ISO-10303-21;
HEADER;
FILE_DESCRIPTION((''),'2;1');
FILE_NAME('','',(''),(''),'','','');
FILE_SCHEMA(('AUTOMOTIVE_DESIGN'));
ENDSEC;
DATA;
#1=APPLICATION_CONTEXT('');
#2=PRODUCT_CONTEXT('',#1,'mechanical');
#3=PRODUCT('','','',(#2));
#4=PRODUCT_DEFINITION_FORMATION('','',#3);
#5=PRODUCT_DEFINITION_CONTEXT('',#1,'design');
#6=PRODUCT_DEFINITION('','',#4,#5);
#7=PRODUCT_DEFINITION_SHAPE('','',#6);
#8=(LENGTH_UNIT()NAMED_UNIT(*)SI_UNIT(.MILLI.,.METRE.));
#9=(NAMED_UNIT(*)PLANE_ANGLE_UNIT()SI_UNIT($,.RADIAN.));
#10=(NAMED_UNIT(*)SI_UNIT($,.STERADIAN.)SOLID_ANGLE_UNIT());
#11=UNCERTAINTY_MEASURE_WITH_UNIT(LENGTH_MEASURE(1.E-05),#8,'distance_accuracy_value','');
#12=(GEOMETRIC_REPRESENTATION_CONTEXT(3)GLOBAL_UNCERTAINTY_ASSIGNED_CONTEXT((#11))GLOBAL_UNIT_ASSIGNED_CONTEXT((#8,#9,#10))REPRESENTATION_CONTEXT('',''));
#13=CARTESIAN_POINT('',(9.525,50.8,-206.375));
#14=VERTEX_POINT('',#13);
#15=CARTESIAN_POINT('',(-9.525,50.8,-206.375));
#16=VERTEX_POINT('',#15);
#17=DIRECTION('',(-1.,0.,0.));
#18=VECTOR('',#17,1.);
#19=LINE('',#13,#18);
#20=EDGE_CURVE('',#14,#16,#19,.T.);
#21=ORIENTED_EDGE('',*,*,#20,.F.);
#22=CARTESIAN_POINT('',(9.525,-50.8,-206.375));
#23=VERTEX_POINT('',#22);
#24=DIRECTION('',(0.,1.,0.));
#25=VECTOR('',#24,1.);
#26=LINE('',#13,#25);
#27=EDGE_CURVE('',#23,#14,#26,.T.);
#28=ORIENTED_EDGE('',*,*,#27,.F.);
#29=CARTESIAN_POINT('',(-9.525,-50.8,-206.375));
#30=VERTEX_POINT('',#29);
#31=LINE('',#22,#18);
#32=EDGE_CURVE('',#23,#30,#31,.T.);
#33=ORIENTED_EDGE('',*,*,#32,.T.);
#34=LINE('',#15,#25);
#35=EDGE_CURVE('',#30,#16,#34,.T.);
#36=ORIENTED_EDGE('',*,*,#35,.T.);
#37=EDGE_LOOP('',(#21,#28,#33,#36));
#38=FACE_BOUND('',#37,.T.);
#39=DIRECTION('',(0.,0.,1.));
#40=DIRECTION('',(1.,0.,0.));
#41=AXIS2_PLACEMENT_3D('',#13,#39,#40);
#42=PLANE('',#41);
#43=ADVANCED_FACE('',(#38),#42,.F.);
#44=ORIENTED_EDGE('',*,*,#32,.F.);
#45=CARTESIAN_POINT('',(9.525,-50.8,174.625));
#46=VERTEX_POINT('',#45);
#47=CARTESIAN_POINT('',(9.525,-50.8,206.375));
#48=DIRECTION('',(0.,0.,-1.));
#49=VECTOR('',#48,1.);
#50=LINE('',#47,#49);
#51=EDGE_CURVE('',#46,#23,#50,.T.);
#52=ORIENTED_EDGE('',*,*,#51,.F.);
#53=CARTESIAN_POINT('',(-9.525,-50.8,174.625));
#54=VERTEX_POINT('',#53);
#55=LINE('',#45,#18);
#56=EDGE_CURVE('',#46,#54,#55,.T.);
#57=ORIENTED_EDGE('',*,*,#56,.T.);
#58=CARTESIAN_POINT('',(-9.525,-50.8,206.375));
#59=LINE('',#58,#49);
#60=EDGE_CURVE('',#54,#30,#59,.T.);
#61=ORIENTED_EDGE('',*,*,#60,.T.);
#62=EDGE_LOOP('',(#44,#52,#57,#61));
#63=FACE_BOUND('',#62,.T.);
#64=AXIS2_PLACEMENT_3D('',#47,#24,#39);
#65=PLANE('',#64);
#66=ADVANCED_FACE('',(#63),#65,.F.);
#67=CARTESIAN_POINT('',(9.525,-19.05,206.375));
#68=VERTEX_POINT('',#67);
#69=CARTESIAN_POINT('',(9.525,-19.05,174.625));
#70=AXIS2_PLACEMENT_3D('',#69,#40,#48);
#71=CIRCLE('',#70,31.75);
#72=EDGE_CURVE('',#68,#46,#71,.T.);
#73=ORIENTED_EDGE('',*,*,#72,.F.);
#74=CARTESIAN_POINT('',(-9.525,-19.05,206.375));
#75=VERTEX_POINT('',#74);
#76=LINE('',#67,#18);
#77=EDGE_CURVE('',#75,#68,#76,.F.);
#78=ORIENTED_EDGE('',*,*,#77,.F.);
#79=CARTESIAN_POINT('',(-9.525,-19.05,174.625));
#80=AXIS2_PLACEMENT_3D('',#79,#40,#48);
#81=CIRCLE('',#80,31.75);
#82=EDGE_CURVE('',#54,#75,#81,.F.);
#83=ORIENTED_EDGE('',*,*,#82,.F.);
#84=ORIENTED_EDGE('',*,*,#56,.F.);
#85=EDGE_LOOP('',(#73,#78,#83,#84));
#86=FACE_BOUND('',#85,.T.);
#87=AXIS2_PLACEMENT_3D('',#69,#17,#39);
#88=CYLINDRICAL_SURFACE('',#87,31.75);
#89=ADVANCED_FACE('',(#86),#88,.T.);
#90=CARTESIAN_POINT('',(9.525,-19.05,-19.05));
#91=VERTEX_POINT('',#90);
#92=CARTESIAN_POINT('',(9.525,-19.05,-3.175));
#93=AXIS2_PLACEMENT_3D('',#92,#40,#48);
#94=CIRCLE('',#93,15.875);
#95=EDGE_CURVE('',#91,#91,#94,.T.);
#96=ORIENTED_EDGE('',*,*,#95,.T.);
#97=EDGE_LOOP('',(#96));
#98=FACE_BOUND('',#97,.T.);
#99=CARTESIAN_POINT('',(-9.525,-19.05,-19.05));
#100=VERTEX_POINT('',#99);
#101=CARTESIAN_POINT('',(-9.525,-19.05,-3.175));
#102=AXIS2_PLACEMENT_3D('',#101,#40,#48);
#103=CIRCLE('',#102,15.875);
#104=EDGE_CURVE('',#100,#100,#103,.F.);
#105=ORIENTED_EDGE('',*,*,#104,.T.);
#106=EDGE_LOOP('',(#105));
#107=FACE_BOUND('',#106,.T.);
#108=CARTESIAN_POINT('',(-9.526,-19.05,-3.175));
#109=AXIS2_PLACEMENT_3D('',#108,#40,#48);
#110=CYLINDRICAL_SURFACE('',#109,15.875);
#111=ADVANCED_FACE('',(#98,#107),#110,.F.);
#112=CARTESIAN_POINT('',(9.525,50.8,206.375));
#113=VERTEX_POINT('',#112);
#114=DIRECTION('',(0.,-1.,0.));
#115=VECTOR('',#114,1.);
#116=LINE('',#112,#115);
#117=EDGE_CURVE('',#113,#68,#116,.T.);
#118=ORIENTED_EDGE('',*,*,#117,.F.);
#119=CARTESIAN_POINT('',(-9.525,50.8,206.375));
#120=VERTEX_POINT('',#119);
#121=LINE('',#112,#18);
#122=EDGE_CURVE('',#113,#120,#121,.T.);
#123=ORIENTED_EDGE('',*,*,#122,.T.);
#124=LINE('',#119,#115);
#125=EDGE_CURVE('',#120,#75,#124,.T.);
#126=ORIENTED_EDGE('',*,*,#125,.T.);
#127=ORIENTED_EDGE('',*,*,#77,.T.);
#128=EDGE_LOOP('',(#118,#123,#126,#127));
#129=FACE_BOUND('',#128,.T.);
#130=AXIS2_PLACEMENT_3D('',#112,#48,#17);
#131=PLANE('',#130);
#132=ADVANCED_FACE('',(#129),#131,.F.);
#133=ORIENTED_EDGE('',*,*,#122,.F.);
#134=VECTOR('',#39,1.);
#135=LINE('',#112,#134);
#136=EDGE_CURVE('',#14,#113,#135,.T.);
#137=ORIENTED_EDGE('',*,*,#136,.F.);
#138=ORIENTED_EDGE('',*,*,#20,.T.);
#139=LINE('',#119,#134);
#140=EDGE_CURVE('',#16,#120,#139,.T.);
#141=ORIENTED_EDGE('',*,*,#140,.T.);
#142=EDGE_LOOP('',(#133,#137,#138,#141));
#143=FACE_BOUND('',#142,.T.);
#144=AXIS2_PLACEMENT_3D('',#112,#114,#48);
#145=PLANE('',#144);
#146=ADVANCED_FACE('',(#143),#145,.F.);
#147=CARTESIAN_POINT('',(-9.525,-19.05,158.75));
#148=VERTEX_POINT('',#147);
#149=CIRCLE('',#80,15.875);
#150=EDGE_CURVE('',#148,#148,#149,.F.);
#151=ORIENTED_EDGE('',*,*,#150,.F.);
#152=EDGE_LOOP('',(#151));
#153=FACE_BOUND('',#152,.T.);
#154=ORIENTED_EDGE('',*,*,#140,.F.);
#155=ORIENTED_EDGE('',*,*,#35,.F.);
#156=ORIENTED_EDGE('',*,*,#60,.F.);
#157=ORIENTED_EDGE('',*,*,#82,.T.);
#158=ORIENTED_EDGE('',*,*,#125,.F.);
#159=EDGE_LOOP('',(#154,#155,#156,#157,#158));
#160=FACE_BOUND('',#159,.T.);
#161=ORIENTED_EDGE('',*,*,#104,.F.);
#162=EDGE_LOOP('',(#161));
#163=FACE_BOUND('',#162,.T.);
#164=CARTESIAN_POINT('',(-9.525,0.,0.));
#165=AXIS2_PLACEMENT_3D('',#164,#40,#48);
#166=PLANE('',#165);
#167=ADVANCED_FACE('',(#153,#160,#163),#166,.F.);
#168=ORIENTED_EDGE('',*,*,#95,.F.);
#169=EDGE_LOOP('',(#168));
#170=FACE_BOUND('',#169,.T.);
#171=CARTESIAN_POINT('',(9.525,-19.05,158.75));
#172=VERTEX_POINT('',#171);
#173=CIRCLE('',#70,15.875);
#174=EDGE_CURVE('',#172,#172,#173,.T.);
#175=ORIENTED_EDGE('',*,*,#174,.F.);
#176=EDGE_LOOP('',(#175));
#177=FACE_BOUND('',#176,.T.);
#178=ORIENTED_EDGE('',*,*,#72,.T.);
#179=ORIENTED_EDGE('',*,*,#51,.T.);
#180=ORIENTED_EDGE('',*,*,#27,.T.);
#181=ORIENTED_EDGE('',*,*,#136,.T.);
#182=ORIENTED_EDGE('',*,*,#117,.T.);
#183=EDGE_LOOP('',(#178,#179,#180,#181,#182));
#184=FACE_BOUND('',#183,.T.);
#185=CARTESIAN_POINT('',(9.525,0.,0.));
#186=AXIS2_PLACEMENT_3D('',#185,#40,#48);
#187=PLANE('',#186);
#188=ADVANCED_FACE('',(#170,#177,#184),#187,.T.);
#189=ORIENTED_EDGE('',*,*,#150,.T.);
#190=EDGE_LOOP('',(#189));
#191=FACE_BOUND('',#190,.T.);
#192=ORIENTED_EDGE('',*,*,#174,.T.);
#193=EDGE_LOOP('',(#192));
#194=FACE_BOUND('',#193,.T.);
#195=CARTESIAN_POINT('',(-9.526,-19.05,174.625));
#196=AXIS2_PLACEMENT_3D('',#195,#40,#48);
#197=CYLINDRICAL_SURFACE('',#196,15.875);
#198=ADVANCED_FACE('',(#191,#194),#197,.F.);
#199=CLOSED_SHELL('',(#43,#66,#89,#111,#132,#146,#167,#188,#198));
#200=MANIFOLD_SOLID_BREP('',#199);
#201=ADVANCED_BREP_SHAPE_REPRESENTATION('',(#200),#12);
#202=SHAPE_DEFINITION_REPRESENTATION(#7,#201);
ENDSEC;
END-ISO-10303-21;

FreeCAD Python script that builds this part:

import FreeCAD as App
import Part
import Sketcher
from FreeCAD import Vector
Q = App.Units.Quantity


def edges_at(feature, points):
    """Names of the edges that pass closest to the given points."""
    edges = feature.Shape.Edges
    near = lambda p: min(range(len(edges)), key=lambda i: edges[i].distToShape(Part.Vertex(*p))[0])
    return sorted({f"Edge{near(p) + 1}" for p in points})

doc = App.newDocument("Part")
body = doc.addObject("PartDesign::Body", "Body")

sketch1 = body.newObject("Sketcher::SketchObject", "Sketch")
sketch1.AttachmentSupport = (doc.getObject("YZ_Plane"), [""])
sketch1.MapMode = "FlatFace"
sketch1.addGeometry([
    Part.LineSegment(Vector(51, 206, 0), Vector(-51, 206, 0)),
    Part.LineSegment(Vector(-51, 206, 0), Vector(-51, -206, 0)),
    Part.LineSegment(Vector(-51, -206, 0), Vector(51, -206, 0)),
    Part.LineSegment(Vector(51, -206, 0), Vector(51, 206, 0)),
], False)
sketch1.addConstraint([
    Sketcher.Constraint("Coincident", 0, 2, 1, 1),
    Sketcher.Constraint("Coincident", 1, 2, 2, 1),
    Sketcher.Constraint("Coincident", 2, 2, 3, 1),
    Sketcher.Constraint("Coincident", 3, 2, 0, 1),
    Sketcher.Constraint("Horizontal", 0),
    Sketcher.Constraint("Vertical", 1),
    Sketcher.Constraint("Horizontal", 2),
    Sketcher.Constraint("Vertical", 3),
    Sketcher.Constraint("Symmetric", 0, 2, 2, 2, -1, 1),
    Sketcher.Constraint("DistanceX", 0, 2, 0, 1, Q("4 in")),
    Sketcher.Constraint("DistanceY", 1, 2, 1, 1, Q("16.25 in")),
])
pad1 = body.newObject("PartDesign::Pad", "Pad")
pad1.Profile = sketch1
pad1.Length = Q("0.75 in")
pad1.Midplane = True

sketch2 = body.newObject("Sketcher::SketchObject", "Sketch001")
sketch2.AttachmentSupport = (doc.getObject("YZ_Plane"), [""])
sketch2.MapMode = "FlatFace"
sketch2.AttachmentOffset = App.Placement(Vector(0, 0, 0.375 * 25.4), App.Rotation())
sketch2.addGeometry(Part.Circle(Vector(-19, 175, 0), Vector(0, 0, 1), 16), False)
sketch2.addConstraint([
    Sketcher.Constraint("Diameter", 0, Q("1.25 in")),
    Sketcher.Constraint("DistanceX", 0, 3, -1, 1, Q("0.75 in")),
    Sketcher.Constraint("DistanceY", -1, 1, 0, 3, Q("6.875 in")),
])
pocket1 = body.newObject("PartDesign::Pocket", "Pocket")
pocket1.Profile = sketch2
pocket1.Type = "UpToFirst"

sketch3 = body.newObject("Sketcher::SketchObject", "Sketch002")
sketch3.AttachmentSupport = (doc.getObject("YZ_Plane"), [""])
sketch3.MapMode = "FlatFace"
sketch3.AttachmentOffset = App.Placement(Vector(0, 0, 0.375 * 25.4), App.Rotation())
sketch3.addGeometry(Part.Circle(Vector(-19, -3, 0), Vector(0, 0, 1), 16), False)
sketch3.addConstraint([
    Sketcher.Constraint("Diameter", 0, Q("1.25 in")),
    Sketcher.Constraint("DistanceX", 0, 3, -1, 1, Q("0.75 in")),
    Sketcher.Constraint("DistanceY", 0, 3, -1, 1, Q("0.125 in")),
])
pocket2 = body.newObject("PartDesign::Pocket", "Pocket001")
pocket2.Profile = sketch3
pocket2.Type = "UpToFirst"
doc.recompute()

fillet = body.newObject("PartDesign::Fillet", "Fillet")
fillet.Base = (pocket2, edges_at(pocket2, [(0, -50.8, 206.375)]))
fillet.Radius = Q("1.25 in")

doc.recompute()
